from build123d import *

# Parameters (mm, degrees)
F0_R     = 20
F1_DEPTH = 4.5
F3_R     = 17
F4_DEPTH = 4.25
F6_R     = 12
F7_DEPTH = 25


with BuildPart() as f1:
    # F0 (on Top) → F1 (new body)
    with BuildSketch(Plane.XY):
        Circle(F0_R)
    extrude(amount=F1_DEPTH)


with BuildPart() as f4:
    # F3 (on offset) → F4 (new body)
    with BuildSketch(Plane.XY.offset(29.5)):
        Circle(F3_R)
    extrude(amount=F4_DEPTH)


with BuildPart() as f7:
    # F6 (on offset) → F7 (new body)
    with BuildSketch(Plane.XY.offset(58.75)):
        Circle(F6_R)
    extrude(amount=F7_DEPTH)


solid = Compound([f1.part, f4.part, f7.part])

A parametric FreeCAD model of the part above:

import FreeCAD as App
import Part
import Sketcher

doc = App.newDocument("Part")
body = doc.addObject("PartDesign::Body", "Body")

# Sketch on XY plane
sketch1 = body.newObject("Sketcher::SketchObject", "Sketch")
sketch1.AttachmentSupport = (doc.getObject("XY_Plane"), [""])
sketch1.MapMode = "FlatFace"
sketch1.addGeometry(Part.Circle(App.Vector(0, 0, 0), App.Vector(0, 0, 1), 20), False)
sketch1.addConstraint([
    Sketcher.Constraint("Coincident", 0, 3, -1, 1),
    Sketcher.Constraint("Diameter", 0, 40.0),
])
pad1 = body.newObject("PartDesign::Pad", "Pad")
pad1.Profile = sketch1
pad1.Length = 4.5
body2 = doc.addObject("PartDesign::Body", "Body001")

# Sketch on XY plane
sketch2 = body2.newObject("Sketcher::SketchObject", "Sketch001")
sketch2.AttachmentSupport = (doc.getObject("XY_Plane001"), [""])
sketch2.MapMode = "FlatFace"
sketch2.AttachmentOffset = App.Placement(App.Vector(0, 0, 29.5), App.Rotation())
sketch2.addGeometry(Part.Circle(App.Vector(0, 0, 0), App.Vector(0, 0, 1), 17), False)
sketch2.addConstraint([
    Sketcher.Constraint("Coincident", 0, 3, -1, 1),
    Sketcher.Constraint("Diameter", 0, 34.0),
])
pad2 = body2.newObject("PartDesign::Pad", "Pad001")
pad2.Profile = sketch2
pad2.Length = 4.25
body3 = doc.addObject("PartDesign::Body", "Body002")

# Sketch on XY plane
sketch3 = body3.newObject("Sketcher::SketchObject", "Sketch002")
sketch3.AttachmentSupport = (doc.getObject("XY_Plane002"), [""])
sketch3.MapMode = "FlatFace"
sketch3.AttachmentOffset = App.Placement(App.Vector(0, 0, 58.75), App.Rotation())
sketch3.addGeometry(Part.Circle(App.Vector(0, 0, 0), App.Vector(0, 0, 1), 12), False)
sketch3.addConstraint([
    Sketcher.Constraint("Coincident", 0, 3, -1, 1),
    Sketcher.Constraint("Diameter", 0, 24.0),
])
pad3 = body3.newObject("PartDesign::Pad", "Pad002")
pad3.Profile = sketch3
pad3.Length = 25

doc.recompute()
